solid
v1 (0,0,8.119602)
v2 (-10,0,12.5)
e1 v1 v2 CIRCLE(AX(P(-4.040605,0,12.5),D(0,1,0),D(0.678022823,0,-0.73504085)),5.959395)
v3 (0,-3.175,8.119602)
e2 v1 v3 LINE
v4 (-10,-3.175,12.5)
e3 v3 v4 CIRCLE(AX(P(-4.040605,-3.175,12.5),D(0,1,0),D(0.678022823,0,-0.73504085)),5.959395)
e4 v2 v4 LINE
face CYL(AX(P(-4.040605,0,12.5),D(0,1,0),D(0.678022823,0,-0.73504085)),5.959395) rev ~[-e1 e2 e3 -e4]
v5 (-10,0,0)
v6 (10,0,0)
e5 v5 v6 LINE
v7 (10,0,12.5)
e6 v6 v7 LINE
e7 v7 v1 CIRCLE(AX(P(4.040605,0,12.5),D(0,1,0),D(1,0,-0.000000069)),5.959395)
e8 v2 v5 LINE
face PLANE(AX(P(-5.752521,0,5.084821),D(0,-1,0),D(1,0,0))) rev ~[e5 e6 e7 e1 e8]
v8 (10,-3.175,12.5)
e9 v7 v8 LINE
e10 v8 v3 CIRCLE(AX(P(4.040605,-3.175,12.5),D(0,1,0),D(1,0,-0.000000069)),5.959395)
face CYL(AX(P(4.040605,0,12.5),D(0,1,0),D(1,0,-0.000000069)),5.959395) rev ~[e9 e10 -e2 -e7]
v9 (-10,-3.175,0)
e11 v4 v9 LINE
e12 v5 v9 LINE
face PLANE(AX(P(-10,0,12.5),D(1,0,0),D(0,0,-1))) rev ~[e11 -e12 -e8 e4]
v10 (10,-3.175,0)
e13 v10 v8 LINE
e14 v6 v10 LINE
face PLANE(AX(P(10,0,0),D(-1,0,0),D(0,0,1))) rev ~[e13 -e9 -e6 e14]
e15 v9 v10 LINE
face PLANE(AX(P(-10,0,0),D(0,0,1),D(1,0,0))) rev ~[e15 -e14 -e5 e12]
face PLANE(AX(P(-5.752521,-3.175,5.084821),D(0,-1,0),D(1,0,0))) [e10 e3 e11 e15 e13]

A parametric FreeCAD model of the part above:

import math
import FreeCAD as App
import Part
import Sketcher
Q = App.Units.Quantity

doc = App.newDocument("Part")
body = doc.addObject("PartDesign::Body", "Body")

# Sketch on XZ plane
sketch1 = body.newObject("Sketcher::SketchObject", "Sketch")
sketch1.AttachmentSupport = (doc.getObject("XZ_Plane"), [""])
sketch1.MapMode = "FlatFace"
sketch1.addGeometry([
    Part.LineSegment(App.Vector(-10, 0, 0), App.Vector(10, 0, 0)),  # 0
    Part.LineSegment(App.Vector(10, 0, 0), App.Vector(10, 12, 0)),  # 1
    Part.ArcOfCircle(Part.Circle(App.Vector(4, 13, 0), App.Vector(0, 0, 1), 6), math.radians(-133), math.radians(0)),  # 2
    Part.ArcOfCircle(Part.Circle(App.Vector(-4, 13, 0), App.Vector(0, 0, 1), 6), math.radians(-180), math.radians(-47)),  # 3
    Part.LineSegment(App.Vector(-10, 12, 0), App.Vector(-10, 0, 0)),  # 4
], False)
sketch1.addConstraint([
    Sketcher.Constraint("Coincident", 0, 2, 1, 1),
    Sketcher.Constraint("Tangent", 1, 2, 2, 2),
    Sketcher.Constraint("Coincident", 2, 1, 3, 2),
    Sketcher.Constraint("Tangent", 3, 1, 4, 1),
    Sketcher.Constraint("Coincident", 4, 2, 0, 1),
    Sketcher.Constraint("Horizontal", 0),
    Sketcher.Constraint("Vertical", 1),
    Sketcher.Constraint("Vertical", 4),
    Sketcher.Constraint("Equal", 2, 3),
    Sketcher.Constraint("Symmetric", 0, 2, 4, 2, -1, 1),
    Sketcher.Constraint("PointOnObject", 2, 1, -2),
    Sketcher.Constraint("DistanceX", 0, 1, 0, 2, Q("20 mm")),
    Sketcher.Constraint("DistanceY", 1, 1, 1, 2, Q("12.5 mm")),
    Sketcher.Constraint("Radius", 2, Q("5.959395 mm")),
])
pad1 = body.newObject("PartDesign::Pad", "Pad")
pad1.Profile = sketch1
pad1.Length = 3.175

doc.recompute()
